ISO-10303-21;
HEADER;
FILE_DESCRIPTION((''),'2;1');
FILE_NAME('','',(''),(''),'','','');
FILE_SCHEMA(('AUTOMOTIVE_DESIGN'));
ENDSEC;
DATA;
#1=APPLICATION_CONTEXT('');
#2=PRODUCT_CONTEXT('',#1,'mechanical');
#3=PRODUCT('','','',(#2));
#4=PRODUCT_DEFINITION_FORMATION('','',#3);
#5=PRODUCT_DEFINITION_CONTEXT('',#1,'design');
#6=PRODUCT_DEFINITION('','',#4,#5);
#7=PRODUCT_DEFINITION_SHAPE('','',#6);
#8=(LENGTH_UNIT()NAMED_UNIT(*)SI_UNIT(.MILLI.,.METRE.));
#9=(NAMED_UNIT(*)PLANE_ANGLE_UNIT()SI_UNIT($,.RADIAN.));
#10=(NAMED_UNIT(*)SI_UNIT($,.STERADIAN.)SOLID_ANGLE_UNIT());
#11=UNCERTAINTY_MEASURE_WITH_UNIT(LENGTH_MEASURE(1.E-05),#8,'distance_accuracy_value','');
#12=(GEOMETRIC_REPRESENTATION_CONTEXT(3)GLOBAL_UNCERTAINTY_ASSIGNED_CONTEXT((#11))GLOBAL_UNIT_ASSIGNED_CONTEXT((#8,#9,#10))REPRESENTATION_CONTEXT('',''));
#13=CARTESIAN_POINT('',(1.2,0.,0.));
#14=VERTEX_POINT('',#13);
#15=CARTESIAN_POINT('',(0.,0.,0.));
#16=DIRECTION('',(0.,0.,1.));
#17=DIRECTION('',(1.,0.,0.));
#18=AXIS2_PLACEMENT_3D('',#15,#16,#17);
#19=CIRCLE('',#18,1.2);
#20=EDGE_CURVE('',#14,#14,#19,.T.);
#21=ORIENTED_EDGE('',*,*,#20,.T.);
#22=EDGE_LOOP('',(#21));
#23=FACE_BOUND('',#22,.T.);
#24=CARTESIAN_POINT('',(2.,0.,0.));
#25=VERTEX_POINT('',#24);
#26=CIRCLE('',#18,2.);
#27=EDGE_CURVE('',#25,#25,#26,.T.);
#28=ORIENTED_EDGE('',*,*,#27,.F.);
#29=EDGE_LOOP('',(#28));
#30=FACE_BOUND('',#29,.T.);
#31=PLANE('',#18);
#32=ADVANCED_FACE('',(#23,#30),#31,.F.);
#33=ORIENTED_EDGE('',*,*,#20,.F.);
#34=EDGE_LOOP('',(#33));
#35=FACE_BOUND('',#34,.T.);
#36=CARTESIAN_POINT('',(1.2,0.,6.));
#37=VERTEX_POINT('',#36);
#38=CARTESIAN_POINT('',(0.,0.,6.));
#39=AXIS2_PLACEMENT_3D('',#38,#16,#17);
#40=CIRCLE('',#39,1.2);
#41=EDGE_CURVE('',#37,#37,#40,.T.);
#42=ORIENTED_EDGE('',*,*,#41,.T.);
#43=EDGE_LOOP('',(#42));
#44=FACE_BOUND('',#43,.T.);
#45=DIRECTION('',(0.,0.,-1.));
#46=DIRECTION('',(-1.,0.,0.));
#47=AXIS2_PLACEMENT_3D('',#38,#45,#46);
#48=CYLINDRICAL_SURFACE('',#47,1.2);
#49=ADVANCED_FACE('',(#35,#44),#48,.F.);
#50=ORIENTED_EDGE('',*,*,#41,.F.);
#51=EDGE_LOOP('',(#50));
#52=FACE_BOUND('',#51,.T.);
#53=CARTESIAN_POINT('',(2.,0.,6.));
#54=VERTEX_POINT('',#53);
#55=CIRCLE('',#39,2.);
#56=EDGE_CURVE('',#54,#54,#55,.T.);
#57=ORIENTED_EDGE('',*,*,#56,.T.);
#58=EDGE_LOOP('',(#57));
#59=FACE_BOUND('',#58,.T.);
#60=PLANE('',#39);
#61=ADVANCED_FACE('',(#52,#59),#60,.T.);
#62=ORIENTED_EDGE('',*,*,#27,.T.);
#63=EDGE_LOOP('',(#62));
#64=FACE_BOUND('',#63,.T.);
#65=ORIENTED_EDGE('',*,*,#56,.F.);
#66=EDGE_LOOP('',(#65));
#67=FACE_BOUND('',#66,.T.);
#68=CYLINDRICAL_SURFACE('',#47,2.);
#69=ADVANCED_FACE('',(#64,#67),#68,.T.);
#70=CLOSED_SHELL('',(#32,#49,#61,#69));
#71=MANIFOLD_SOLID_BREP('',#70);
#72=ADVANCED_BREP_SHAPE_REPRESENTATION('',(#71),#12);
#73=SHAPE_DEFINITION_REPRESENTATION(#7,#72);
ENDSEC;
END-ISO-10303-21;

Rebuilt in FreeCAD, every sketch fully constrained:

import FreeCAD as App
import Part
import Sketcher

V = App.Vector

doc = App.newDocument("Part")
body = doc.addObject("PartDesign::Body", "Body")

# Sketch on XY plane
sketch1 = doc.addObject("Sketcher::SketchObject", "Sketch")
body.addObject(sketch1)
sketch1.AttachmentSupport = (doc.XY_Plane, [""])
sketch1.MapMode = "FlatFace"
sketch1.addGeometry(Part.Circle(V(0, 0, 0), V(0, 0, 1), 2), False)
sketch1.addGeometry(Part.Circle(V(0, 0, 0), V(0, 0, 1), 1.2), False)
sketch1.addConstraint(Sketcher.Constraint("Coincident", 0, 3, -1, 1))
sketch1.addConstraint(Sketcher.Constraint("Coincident", 1, 3, -1, 1))
sketch1.addConstraint(Sketcher.Constraint("Diameter", 0, 4.0))
sketch1.addConstraint(Sketcher.Constraint("Diameter", 1, 2.4))
pad1 = doc.addObject("PartDesign::Pad", "Pad")
body.addObject(pad1)
pad1.Profile = sketch1
pad1.Length = 6

doc.recompute()
